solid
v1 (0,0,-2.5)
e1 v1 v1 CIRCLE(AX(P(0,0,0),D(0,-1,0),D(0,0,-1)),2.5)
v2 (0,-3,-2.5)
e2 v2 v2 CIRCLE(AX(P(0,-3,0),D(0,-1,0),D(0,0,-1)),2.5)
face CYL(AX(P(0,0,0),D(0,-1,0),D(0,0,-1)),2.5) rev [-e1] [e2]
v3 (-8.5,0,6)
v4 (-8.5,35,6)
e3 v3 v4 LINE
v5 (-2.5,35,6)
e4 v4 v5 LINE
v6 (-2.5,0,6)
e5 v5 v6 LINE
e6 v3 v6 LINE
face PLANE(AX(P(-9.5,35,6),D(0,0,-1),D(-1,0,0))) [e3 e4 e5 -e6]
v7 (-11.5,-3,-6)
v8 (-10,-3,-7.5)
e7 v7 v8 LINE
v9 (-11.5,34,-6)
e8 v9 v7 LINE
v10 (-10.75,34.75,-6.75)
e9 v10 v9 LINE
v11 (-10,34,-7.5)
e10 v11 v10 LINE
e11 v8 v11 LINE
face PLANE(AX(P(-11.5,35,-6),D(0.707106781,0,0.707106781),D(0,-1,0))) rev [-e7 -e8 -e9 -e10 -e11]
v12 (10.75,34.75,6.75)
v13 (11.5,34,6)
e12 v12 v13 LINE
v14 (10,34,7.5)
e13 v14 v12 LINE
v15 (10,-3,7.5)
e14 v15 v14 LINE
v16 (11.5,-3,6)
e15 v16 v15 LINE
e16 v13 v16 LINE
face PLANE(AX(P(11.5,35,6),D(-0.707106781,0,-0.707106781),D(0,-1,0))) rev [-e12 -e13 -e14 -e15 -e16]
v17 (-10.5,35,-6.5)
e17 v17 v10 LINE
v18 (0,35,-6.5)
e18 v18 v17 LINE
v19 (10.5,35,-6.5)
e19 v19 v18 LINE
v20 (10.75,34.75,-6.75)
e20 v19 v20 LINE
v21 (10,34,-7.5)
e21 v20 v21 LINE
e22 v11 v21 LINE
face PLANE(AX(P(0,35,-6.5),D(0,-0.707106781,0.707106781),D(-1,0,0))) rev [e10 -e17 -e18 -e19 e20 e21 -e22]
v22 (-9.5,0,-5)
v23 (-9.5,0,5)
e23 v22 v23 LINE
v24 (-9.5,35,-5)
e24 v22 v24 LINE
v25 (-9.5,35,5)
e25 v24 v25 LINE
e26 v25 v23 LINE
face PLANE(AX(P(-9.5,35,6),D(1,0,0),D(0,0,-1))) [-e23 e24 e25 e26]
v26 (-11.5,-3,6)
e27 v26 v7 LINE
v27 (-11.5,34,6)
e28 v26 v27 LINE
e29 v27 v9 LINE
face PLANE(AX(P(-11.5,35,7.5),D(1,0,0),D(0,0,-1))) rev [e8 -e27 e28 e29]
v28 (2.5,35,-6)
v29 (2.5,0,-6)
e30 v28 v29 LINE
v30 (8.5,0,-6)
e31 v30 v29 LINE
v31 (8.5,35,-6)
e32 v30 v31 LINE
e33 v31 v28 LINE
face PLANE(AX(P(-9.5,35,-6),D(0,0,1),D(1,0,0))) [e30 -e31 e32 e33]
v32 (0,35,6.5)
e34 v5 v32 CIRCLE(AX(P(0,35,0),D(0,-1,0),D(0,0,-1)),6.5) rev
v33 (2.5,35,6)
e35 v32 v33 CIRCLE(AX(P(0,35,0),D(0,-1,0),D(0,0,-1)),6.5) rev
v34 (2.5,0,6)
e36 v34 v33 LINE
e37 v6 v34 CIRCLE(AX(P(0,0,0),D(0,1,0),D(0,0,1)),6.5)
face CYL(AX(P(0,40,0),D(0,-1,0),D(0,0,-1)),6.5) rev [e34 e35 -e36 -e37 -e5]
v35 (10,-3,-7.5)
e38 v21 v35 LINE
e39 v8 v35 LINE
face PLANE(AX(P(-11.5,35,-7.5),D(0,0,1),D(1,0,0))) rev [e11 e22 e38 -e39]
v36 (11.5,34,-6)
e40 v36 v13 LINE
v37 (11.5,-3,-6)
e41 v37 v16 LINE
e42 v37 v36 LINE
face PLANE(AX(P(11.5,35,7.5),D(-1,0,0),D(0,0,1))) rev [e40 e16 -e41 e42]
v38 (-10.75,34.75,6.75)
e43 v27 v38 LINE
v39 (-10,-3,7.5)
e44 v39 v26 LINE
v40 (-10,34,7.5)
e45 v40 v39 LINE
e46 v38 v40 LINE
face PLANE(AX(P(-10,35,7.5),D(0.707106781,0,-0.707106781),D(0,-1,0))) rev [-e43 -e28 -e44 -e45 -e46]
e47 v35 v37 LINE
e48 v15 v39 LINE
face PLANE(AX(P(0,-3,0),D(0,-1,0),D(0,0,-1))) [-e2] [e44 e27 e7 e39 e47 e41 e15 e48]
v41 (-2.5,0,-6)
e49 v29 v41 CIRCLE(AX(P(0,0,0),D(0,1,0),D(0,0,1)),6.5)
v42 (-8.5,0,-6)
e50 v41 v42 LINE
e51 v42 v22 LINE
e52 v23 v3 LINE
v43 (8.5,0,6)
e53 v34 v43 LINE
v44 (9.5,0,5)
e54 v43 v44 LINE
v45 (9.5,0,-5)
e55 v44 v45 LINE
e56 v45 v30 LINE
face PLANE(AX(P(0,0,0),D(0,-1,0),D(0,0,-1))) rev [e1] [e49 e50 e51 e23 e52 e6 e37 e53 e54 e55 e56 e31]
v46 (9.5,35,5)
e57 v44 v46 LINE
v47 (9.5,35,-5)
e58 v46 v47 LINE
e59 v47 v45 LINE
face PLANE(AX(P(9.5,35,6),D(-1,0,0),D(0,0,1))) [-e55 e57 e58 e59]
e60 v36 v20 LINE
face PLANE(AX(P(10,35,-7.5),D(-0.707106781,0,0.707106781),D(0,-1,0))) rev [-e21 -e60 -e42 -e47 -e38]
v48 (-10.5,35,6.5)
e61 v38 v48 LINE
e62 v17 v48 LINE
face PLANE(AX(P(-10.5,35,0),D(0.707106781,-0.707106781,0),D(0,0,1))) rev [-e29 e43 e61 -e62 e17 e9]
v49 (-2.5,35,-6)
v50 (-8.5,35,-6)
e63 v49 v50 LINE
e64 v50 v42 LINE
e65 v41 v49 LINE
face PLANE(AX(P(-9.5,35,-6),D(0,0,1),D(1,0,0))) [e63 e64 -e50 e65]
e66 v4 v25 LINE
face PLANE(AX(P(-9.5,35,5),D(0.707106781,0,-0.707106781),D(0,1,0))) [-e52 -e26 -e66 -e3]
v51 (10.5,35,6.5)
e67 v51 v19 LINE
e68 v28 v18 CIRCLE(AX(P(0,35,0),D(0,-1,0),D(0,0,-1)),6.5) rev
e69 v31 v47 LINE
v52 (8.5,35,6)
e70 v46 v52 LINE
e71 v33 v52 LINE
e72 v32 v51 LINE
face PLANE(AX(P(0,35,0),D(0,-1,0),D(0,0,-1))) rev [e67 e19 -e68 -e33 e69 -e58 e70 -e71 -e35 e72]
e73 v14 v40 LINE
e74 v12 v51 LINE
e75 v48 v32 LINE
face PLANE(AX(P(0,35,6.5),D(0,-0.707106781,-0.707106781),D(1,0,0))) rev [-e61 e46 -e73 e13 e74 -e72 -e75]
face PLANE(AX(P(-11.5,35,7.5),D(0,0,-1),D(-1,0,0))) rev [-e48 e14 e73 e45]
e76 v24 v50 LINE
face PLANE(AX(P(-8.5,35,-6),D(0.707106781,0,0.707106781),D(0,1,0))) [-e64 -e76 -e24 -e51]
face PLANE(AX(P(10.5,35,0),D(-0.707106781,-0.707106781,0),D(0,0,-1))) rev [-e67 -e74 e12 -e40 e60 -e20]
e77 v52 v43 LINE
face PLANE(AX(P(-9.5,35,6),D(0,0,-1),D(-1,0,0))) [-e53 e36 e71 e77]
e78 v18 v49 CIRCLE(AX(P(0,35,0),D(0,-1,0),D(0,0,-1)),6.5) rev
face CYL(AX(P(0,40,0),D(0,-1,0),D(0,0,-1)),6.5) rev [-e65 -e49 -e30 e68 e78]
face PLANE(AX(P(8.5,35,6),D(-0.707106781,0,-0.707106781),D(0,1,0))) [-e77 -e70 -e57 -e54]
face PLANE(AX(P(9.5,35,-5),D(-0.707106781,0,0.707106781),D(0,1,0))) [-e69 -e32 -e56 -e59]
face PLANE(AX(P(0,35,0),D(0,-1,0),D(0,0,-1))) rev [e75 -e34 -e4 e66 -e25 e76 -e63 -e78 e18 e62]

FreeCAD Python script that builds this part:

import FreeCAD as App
import Part
import Sketcher

V = App.Vector


def edges_at(feature, points):
    """Names of the edges that pass closest to the given points."""
    edges = feature.Shape.Edges
    near = lambda p: min(range(len(edges)), key=lambda i: edges[i].distToShape(Part.Vertex(*p))[0])
    return sorted({f"Edge{near(p) + 1}" for p in points})

doc = App.newDocument("Part")
body = doc.addObject("PartDesign::Body", "Body")

sketch1 = body.newObject("Sketcher::SketchObject", "Sketch")
sketch1.AttachmentSupport = (doc.getObject("XZ_Plane"), [""])
sketch1.MapMode = "FlatFace"
sketch1.addGeometry([
    Part.LineSegment(V(-12, -8, 0), V(-12, 8, 0)),
    Part.LineSegment(V(-12, 8, 0), V(12, 8, 0)),
    Part.LineSegment(V(12, 8, 0), V(12, -8, 0)),
    Part.LineSegment(V(12, -8, 0), V(-12, -8, 0)),
    Part.LineSegment(V(10, 6, 0), V(-10, 6, 0)),
    Part.LineSegment(V(-10, 6, 0), V(-10, -6, 0)),
    Part.LineSegment(V(-10, -6, 0), V(10, -6, 0)),
    Part.LineSegment(V(10, -6, 0), V(10, 6, 0)),
], False)
sketch1.addConstraint([
    Sketcher.Constraint("Coincident", 0, 2, 1, 1),
    Sketcher.Constraint("Coincident", 1, 2, 2, 1),
    Sketcher.Constraint("Coincident", 2, 2, 3, 1),
    Sketcher.Constraint("Coincident", 3, 2, 0, 1),
    Sketcher.Constraint("Coincident", 4, 2, 5, 1),
    Sketcher.Constraint("Coincident", 5, 2, 6, 1),
    Sketcher.Constraint("Coincident", 6, 2, 7, 1),
    Sketcher.Constraint("Coincident", 7, 2, 4, 1),
    Sketcher.Constraint("Vertical", 0),
    Sketcher.Constraint("Horizontal", 1),
    Sketcher.Constraint("Vertical", 2),
    Sketcher.Constraint("Horizontal", 3),
    Sketcher.Constraint("Horizontal", 4),
    Sketcher.Constraint("Vertical", 5),
    Sketcher.Constraint("Horizontal", 6),
    Sketcher.Constraint("Vertical", 7),
    Sketcher.Constraint("Symmetric", 0, 2, 2, 2, -1, 1),
    Sketcher.Constraint("Symmetric", 4, 2, 6, 2, -1, 1),
    Sketcher.Constraint("DistanceX", 1, 1, 1, 2, 23.0),
    Sketcher.Constraint("DistanceX", 4, 2, 4, 1, 19.0),
    Sketcher.Constraint("DistanceY", 0, 1, 0, 2, 15.0),
    Sketcher.Constraint("DistanceY", 5, 2, 5, 1, 12.0),
])
pad1 = body.newObject("PartDesign::Pad", "Pad")
pad1.Profile = sketch1
pad1.Length = 35
pad1.Reversed = True
doc.recompute()

chamfer = body.newObject("PartDesign::Chamfer", "Chamfer")
chamfer.Base = (pad1, edges_at(pad1, [
    (-11.5, 35, 0),
    (0, 35, 7.5),
    (11.5, 35, 0),
    (0, 35, -7.5),
]))
chamfer.Size = 1
doc.recompute()

chamfer2 = body.newObject("PartDesign::Chamfer", "Chamfer001")
chamfer2.Base = (chamfer, edges_at(chamfer, [
    (9.5, 17.5, 6),
    (9.5, 17.5, -6),
    (-9.5, 17.5, -6),
    (-9.5, 17.5, 6),
]))
chamfer2.Size = 1

sketch2 = body.newObject("Sketcher::SketchObject", "Sketch001")
sketch2.AttachmentSupport = (doc.getObject("XZ_Plane"), [""])
sketch2.MapMode = "FlatFace"
sketch2.addGeometry([
    Part.LineSegment(V(-12, 8, 0), V(-12, -8, 0)),
    Part.LineSegment(V(-12, -8, 0), V(12, -8, 0)),
    Part.LineSegment(V(12, -8, 0), V(12, 8, 0)),
    Part.LineSegment(V(12, 8, 0), V(-12, 8, 0)),
], False)
sketch2.addConstraint([
    Sketcher.Constraint("Coincident", 0, 2, 1, 1),
    Sketcher.Constraint("Coincident", 1, 2, 2, 1),
    Sketcher.Constraint("Coincident", 2, 2, 3, 1),
    Sketcher.Constraint("Coincident", 3, 2, 0, 1),
    Sketcher.Constraint("Vertical", 0),
    Sketcher.Constraint("Horizontal", 1),
    Sketcher.Constraint("Vertical", 2),
    Sketcher.Constraint("Horizontal", 3),
    Sketcher.Constraint("Symmetric", 0, 2, 2, 2, -1, 1),
    Sketcher.Constraint("DistanceX", 1, 1, 1, 2, 23.0),
    Sketcher.Constraint("DistanceY", 0, 2, 0, 1, 15.0),
])
pad2 = body.newObject("PartDesign::Pad", "Pad001")
pad2.Profile = sketch2
pad2.Length = 3
doc.recompute()

chamfer3 = body.newObject("PartDesign::Chamfer", "Chamfer002")
chamfer3.Base = (pad2, edges_at(pad2, [
    (-11.5, 15.5, 7.5),
    (-11.5, 15.5, -7.5),
    (11.5, 15.5, -7.5),
    (11.5, 15.5, 7.5),
]))
chamfer3.Size = 1.5

sketch3 = body.newObject("Sketcher::SketchObject", "Sketch002")
sketch3.AttachmentSupport = (doc.getObject("XZ_Plane"), [""])
sketch3.MapMode = "FlatFace"
sketch3.AttachmentOffset = App.Placement(V(0, 0, 3), App.Rotation())
sketch3.addGeometry(Part.Circle(V(0, 0, 0), V(0, 0, 1), 2.5), False)
sketch3.addConstraint([
    Sketcher.Constraint("Coincident", 0, 3, -1, 1),
    Sketcher.Constraint("Diameter", 0, 5.0),
])
pocket1 = body.newObject("PartDesign::Pocket", "Pocket")
pocket1.Profile = sketch3
pocket1.Length = 3

sketch4 = body.newObject("Sketcher::SketchObject", "Sketch003")
sketch4.AttachmentSupport = (doc.getObject("XZ_Plane"), [""])
sketch4.MapMode = "FlatFace"
sketch4.addGeometry(Part.Circle(V(0, 0, 0), V(0, 0, 1), 6), False)
sketch4.addConstraint([
    Sketcher.Constraint("Coincident", 0, 3, -1, 1),
    Sketcher.Constraint("Diameter", 0, 13.0),
])
pocket2 = body.newObject("PartDesign::Pocket", "Pocket001")
pocket2.Profile = sketch4
pocket2.Length = 40

doc.recompute()
